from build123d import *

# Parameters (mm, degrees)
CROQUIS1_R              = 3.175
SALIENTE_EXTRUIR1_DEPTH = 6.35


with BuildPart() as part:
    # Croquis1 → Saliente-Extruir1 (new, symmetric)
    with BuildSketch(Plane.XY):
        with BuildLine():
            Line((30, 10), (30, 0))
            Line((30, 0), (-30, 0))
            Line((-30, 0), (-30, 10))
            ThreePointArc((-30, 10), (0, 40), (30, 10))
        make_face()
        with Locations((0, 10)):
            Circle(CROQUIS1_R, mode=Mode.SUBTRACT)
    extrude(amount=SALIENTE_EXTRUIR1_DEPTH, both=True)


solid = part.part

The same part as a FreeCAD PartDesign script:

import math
import FreeCAD as App
import Part
import Sketcher
from FreeCAD import Vector
Q = App.Units.Quantity

doc = App.newDocument("Part")
body = doc.addObject("PartDesign::Body", "Body")

sketch1 = body.newObject("Sketcher::SketchObject", "Sketch")
sketch1.AttachmentSupport = (doc.getObject("XY_Plane"), [""])
sketch1.MapMode = "FlatFace"
sketch1.addGeometry(Part.LineSegment(Vector(30, 0, 0), Vector(30, 10, 0)), False)
sketch1.addGeometry(Part.ArcOfCircle(Part.Circle(Vector(0, 10, 0), Vector(0, 0, 1), 30), math.radians(0), math.radians(180)), False)
sketch1.addGeometry(Part.LineSegment(Vector(-30, 10, 0), Vector(-30, 0, 0)), False)
sketch1.addGeometry(Part.LineSegment(Vector(-30, 0, 0), Vector(30, 0, 0)), False)
sketch1.addGeometry(Part.Circle(Vector(0, 10, 0), Vector(0, 0, 1), 3.2), False)
sketch1.addConstraint(Sketcher.Constraint("Tangent", 0, 2, 1, 1))
sketch1.addConstraint(Sketcher.Constraint("Tangent", 1, 2, 2, 1))
sketch1.addConstraint(Sketcher.Constraint("Coincident", 2, 2, 3, 1))
sketch1.addConstraint(Sketcher.Constraint("Coincident", 3, 2, 0, 1))
sketch1.addConstraint(Sketcher.Constraint("Vertical", 0))
sketch1.addConstraint(Sketcher.Constraint("Vertical", 2))
sketch1.addConstraint(Sketcher.Constraint("Horizontal", 3))
sketch1.addConstraint(Sketcher.Constraint("Coincident", 4, 3, 1, 3))
sketch1.addConstraint(Sketcher.Constraint("Symmetric", 2, 2, 3, 2, -1, 1))
sketch1.addConstraint(Sketcher.Constraint("Radius", 1, Q("30 mm")))
sketch1.addConstraint(Sketcher.Constraint("Diameter", 4, Q("6.35 mm")))
sketch1.addConstraint(Sketcher.Constraint("DistanceY", 0, 1, 0, 2, Q("10 mm")))
pad1 = body.newObject("PartDesign::Pad", "Pad")
pad1.Profile = sketch1
pad1.Length = 12.7
pad1.Midplane = True

doc.recompute()
